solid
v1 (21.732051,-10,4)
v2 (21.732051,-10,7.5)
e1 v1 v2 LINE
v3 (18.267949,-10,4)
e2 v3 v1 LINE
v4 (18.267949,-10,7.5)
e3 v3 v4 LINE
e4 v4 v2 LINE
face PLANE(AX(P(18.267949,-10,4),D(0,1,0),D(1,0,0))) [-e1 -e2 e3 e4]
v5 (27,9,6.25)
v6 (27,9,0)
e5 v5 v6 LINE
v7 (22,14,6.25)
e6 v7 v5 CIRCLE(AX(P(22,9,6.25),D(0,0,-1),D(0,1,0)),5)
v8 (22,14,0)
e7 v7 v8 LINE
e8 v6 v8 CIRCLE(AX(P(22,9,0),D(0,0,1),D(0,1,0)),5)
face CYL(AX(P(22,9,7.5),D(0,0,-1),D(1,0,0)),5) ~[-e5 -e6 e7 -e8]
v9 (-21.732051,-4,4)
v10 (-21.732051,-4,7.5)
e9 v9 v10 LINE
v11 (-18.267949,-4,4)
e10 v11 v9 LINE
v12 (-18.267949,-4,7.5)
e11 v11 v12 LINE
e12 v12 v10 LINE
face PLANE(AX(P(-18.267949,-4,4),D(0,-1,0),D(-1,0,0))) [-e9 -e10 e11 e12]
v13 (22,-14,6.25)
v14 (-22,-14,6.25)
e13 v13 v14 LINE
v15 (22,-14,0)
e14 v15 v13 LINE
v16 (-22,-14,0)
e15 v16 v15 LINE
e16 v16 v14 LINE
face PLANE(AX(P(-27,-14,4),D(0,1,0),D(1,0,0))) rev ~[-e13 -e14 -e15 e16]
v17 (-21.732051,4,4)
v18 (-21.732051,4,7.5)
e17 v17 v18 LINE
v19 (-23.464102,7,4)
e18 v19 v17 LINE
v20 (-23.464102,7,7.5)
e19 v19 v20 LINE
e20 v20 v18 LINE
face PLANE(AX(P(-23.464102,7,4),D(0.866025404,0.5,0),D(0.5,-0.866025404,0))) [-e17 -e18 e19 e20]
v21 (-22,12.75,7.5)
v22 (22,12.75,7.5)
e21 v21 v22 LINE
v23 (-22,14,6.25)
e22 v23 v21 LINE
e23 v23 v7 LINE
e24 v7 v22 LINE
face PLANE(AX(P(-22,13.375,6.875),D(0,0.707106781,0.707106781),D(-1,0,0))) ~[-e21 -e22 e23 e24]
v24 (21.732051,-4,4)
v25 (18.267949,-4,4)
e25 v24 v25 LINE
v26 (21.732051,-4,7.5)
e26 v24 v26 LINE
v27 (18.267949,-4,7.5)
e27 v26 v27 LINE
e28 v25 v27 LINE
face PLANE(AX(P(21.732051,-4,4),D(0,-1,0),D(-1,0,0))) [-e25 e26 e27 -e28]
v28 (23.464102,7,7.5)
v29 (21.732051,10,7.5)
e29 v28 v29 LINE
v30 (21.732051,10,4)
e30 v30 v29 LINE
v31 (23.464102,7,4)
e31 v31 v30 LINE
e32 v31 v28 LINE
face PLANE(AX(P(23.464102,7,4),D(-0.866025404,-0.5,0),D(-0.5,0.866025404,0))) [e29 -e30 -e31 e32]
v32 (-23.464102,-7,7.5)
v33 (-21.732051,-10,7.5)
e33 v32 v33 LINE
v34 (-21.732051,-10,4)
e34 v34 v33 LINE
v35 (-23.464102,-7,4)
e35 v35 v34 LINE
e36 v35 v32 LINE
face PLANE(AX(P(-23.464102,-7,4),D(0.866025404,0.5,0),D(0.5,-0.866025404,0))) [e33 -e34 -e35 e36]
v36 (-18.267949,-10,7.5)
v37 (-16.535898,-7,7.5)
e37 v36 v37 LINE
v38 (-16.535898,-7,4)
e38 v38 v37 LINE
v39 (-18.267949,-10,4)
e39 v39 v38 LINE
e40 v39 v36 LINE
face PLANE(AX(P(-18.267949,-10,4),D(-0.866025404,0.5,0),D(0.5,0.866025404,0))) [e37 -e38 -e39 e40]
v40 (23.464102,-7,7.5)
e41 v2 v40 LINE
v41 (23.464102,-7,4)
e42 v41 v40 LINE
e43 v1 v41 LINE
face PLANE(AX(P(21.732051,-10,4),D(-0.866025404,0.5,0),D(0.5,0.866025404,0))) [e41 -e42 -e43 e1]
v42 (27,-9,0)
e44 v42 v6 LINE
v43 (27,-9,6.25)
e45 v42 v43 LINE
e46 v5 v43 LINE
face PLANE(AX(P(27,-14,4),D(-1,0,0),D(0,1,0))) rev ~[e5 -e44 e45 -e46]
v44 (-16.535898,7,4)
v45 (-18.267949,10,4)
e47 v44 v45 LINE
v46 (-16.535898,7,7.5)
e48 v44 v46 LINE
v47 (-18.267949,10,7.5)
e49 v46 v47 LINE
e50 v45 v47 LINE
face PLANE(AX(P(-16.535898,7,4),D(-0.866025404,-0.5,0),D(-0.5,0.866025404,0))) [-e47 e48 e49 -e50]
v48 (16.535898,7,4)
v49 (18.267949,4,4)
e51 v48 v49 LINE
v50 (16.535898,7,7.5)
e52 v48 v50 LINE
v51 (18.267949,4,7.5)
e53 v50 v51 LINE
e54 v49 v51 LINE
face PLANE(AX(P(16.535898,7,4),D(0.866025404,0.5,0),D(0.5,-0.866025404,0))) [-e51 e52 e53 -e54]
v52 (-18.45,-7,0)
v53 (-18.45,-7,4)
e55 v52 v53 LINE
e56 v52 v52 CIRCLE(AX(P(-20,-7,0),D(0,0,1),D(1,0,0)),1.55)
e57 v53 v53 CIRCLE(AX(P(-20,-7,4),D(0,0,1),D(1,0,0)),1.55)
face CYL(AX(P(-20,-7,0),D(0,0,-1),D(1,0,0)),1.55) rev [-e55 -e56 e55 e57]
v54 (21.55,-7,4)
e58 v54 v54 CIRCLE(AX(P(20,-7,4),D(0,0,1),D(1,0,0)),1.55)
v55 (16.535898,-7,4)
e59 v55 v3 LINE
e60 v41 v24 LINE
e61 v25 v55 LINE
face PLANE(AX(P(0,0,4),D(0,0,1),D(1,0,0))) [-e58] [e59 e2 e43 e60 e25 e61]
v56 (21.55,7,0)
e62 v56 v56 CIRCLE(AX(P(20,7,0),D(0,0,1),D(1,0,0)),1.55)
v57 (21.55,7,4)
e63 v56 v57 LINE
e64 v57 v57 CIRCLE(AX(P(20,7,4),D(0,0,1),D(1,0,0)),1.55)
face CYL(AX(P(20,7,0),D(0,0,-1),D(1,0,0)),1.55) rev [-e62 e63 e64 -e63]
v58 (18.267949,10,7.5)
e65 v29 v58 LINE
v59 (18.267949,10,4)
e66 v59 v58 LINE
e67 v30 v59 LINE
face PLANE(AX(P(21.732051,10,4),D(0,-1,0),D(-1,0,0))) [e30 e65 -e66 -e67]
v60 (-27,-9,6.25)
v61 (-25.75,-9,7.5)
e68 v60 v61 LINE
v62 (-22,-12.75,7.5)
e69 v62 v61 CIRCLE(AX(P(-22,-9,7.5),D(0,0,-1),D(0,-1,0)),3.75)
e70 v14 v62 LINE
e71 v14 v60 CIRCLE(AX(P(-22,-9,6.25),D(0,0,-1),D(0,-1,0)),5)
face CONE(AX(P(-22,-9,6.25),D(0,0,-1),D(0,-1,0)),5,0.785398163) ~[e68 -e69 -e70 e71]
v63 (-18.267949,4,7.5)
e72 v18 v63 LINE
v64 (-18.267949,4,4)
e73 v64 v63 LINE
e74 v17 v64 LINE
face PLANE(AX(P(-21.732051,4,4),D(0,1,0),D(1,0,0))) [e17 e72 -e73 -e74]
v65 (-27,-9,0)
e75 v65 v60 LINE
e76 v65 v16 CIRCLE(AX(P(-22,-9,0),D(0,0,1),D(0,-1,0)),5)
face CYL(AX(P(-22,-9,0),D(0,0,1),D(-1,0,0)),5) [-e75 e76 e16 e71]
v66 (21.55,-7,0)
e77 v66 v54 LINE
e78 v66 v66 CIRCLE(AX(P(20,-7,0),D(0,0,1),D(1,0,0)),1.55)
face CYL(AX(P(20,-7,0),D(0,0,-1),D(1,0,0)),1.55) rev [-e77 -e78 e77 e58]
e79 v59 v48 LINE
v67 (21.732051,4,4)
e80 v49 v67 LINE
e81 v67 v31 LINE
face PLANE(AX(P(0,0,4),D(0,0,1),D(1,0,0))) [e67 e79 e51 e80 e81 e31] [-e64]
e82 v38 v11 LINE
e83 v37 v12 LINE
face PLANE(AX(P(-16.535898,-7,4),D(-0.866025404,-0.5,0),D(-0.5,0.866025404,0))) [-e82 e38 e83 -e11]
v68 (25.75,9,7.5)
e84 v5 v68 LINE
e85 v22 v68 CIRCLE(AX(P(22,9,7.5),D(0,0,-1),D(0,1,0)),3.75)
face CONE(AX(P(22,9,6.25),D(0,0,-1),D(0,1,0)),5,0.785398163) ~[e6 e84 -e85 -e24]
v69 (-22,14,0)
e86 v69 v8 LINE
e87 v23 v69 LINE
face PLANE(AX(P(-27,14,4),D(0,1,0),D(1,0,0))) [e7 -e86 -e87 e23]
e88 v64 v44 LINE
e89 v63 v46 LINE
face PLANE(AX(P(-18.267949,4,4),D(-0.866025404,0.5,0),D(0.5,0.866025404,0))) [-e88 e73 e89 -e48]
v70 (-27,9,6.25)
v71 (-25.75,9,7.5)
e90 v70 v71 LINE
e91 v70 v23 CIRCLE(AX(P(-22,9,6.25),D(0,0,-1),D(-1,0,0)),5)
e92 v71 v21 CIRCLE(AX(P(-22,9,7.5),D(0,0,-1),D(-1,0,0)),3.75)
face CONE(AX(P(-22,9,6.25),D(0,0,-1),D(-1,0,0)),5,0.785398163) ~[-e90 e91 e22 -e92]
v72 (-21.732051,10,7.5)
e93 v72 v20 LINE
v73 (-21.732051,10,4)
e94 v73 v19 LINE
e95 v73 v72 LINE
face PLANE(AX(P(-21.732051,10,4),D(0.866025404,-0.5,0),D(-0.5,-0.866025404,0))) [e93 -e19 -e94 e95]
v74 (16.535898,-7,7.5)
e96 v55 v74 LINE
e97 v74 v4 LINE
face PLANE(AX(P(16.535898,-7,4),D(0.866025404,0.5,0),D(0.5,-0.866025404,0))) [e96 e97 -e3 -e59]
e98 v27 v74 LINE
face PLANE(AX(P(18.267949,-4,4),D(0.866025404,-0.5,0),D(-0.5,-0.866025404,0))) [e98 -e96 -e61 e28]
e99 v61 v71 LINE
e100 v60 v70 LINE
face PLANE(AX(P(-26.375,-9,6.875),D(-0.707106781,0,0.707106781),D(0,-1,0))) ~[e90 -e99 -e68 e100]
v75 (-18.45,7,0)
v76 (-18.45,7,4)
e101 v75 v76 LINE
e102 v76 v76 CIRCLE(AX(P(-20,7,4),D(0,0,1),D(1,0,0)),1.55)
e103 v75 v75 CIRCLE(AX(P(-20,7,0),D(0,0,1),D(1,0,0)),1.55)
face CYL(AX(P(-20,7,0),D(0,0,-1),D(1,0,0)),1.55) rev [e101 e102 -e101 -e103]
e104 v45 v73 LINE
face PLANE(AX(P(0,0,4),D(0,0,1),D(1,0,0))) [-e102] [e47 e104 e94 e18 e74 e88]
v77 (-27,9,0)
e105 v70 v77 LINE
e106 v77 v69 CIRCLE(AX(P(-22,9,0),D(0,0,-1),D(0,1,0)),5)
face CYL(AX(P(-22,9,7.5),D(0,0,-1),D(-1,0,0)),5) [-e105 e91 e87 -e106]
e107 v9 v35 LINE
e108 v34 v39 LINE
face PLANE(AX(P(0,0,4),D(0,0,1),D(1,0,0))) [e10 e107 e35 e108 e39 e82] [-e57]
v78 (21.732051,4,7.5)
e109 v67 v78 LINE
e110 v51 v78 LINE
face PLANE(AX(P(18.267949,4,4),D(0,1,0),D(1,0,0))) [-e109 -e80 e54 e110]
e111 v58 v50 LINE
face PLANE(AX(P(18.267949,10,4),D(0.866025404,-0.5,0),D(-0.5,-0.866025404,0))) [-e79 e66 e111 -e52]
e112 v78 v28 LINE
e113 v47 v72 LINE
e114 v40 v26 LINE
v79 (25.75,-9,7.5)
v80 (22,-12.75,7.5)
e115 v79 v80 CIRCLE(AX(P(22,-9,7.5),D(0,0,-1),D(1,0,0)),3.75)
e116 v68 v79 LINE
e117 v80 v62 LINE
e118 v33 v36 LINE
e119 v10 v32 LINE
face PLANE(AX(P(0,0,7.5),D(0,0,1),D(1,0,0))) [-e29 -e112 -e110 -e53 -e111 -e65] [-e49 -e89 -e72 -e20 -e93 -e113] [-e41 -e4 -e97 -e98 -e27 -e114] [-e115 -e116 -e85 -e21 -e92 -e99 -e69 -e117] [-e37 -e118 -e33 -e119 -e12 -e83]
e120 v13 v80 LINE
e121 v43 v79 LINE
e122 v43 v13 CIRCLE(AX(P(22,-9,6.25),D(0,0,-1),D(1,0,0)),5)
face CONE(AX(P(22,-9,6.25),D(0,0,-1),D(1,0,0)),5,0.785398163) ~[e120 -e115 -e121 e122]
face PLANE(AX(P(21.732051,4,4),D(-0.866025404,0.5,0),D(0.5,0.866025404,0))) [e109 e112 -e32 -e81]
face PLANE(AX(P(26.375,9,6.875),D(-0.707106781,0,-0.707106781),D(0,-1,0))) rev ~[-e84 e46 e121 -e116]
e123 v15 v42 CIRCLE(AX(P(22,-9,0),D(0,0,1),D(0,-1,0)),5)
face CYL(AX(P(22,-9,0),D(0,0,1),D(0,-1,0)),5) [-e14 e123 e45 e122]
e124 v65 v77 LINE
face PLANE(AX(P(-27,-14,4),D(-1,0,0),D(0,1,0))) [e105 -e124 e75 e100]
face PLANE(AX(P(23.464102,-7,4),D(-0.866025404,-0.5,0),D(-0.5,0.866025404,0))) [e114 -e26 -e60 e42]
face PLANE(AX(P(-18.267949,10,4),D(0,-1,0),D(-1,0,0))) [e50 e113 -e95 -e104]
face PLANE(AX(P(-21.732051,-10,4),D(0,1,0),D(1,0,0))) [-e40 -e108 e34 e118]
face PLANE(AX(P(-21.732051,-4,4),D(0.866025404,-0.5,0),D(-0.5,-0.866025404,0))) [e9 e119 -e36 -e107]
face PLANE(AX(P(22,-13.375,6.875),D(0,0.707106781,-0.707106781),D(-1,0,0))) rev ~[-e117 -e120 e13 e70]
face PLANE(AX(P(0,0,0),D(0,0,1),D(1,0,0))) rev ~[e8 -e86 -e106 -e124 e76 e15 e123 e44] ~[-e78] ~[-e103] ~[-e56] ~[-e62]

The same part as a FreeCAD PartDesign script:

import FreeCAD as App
import Part
import Sketcher
from FreeCAD import Vector
Q = App.Units.Quantity


def edges_at(feature, points):
    """Names of the edges that pass closest to the given points."""
    edges = feature.Shape.Edges
    near = lambda p: min(range(len(edges)), key=lambda i: edges[i].distToShape(Part.Vertex(*p))[0])
    return sorted({f"Edge{near(p) + 1}" for p in points})


def add_polygon(sketch, points):
    """Adds a closed chain of lines whose ends are joined by coincident constraints."""
    first, n = sketch.GeometryCount, len(points)
    for a, b in zip(points, points[1:] + points[:1]):
        sketch.addGeometry(Part.LineSegment(App.Vector(*a, 0), App.Vector(*b, 0)), False)
    for i in range(n):
        sketch.addConstraint(Sketcher.Constraint("Coincident", first + i, 2, first + (i + 1) % n, 1))

doc = App.newDocument("Part")
params = doc.addObject("Spreadsheet::Sheet", "Params")
for row, (alias, value) in enumerate([
    ("sketch1_diameter", "3.1 mm"),
    ("sketch1_width", "54 mm"),
    ("sketch1_height", "28 mm"),
    ("pad1_length", "4 mm"),
    ("sketch2_width", "54 mm"),
    ("sketch2_height", "28 mm"),
    ("pad2_length", "3.5 mm"),
    ("fillet_radius", "5 mm"),
    ("chamfer_size", "1.25 mm"),
], start=1):
    params.set(f"A{row}", alias)
    params.set(f"B{row}", "=" + value)
    params.setAlias(f"B{row}", alias)

body = doc.addObject("PartDesign::Body", "Body")

sketch1 = doc.addObject("Sketcher::SketchObject", "Sketch")
body.addObject(sketch1)
sketch1.AttachmentSupport = (doc.XY_Plane, [""])
sketch1.MapMode = "FlatFace"
add_polygon(sketch1, [(-27, 14), (-27, -14), (27, -14), (27, 14)])
sketch1.addGeometry(Part.Circle(Vector(-20, -7, 0), Vector(0, 0, 1), 1.6), False)
sketch1.addGeometry(Part.Circle(Vector(20, -7, 0), Vector(0, 0, 1), 1.6), False)
sketch1.addGeometry(Part.Circle(Vector(-20, 7, 0), Vector(0, 0, 1), 1.6), False)
sketch1.addGeometry(Part.Circle(Vector(20, 7, 0), Vector(0, 0, 1), 1.6), False)
sketch1.addConstraint([
    Sketcher.Constraint("Vertical", 0),
    Sketcher.Constraint("Horizontal", 1),
    Sketcher.Constraint("Vertical", 2),
    Sketcher.Constraint("Horizontal", 3),
    Sketcher.Constraint("Equal", 4, 5),
    Sketcher.Constraint("Equal", 5, 6),
    Sketcher.Constraint("Equal", 6, 7),
    Sketcher.Constraint("Symmetric", 5, 3, 6, 3, -1, 1),
    Sketcher.Constraint("Symmetric", 4, 3, 7, 3, -1, 1),
    Sketcher.Constraint("Symmetric", 0, 2, 2, 2, -1, 1),
    Sketcher.Constraint("Symmetric", 4, 3, 5, 3, -2),
    Sketcher.Constraint("Diameter", 4, Q("3.1 mm")),
    Sketcher.Constraint("DistanceX", 1, 1, 1, 2, Q("54 mm")),
    Sketcher.Constraint("DistanceY", 0, 2, 0, 1, Q("28 mm")),
    Sketcher.Constraint("DistanceX", 4, 3, -1, 1, Q("20 mm")),
    Sketcher.Constraint("DistanceY", 4, 3, -1, 1, Q("7 mm")),
])
sketch1.setExpression("Constraints[15]", "Params.sketch1_diameter")
sketch1.setExpression("Constraints[16]", "Params.sketch1_width")
sketch1.setExpression("Constraints[17]", "Params.sketch1_height")
pad1 = doc.addObject("PartDesign::Pad", "Pad")
body.addObject(pad1)
pad1.Profile = sketch1
pad1.setExpression("Length", "Params.pad1_length")

sketch2 = doc.addObject("Sketcher::SketchObject", "Sketch001")
body.addObject(sketch2)
sketch2.AttachmentSupport = (doc.XY_Plane, [""])
sketch2.MapMode = "FlatFace"
sketch2.AttachmentOffset = App.Placement(Vector(0, 0, 4), App.Rotation())
add_polygon(sketch2, [(-27, 14), (-27, -14), (27, -14), (27, 14)])
add_polygon(sketch2, [(-18.3, -10), (-21.7, -10), (-23.5, -7), (-21.7, -4), (-18.3, -4), (-16.5, -7)])
add_polygon(sketch2, [(23.5, -7), (21.7, -10), (18.3, -10), (16.5, -7), (18.3, -4), (21.7, -4)])
add_polygon(sketch2, [(-16.5, 7), (-18.3, 4), (-21.7, 4), (-23.5, 7), (-21.7, 10), (-18.3, 10)])
add_polygon(sketch2, [(23.5, 7), (21.7, 4), (18.3, 4), (16.5, 7), (18.3, 10), (21.7, 10)])
sketch2.addConstraint([
    Sketcher.Constraint("Vertical", 0),
    Sketcher.Constraint("Horizontal", 1),
    Sketcher.Constraint("Vertical", 2),
    Sketcher.Constraint("Horizontal", 3),
    Sketcher.Constraint("Horizontal", 4),
    Sketcher.Constraint("Horizontal", 7),
    Sketcher.Constraint("Horizontal", 11),
    Sketcher.Constraint("Horizontal", 14),
    Sketcher.Constraint("Horizontal", 17),
    Sketcher.Constraint("Horizontal", 20),
    Sketcher.Constraint("Horizontal", 23),
    Sketcher.Constraint("Horizontal", 26),
    Sketcher.Constraint("Symmetric", 0, 2, 2, 2, -1, 1),
    Sketcher.Constraint("Symmetric", 13, 2, 16, 2, -1, 1),
    Sketcher.Constraint("Symmetric", 15, 2, 18, 2, -1, 1),
    Sketcher.Constraint("Symmetric", 10, 2, 19, 2, -1, 1),
    Sketcher.Constraint("Symmetric", 12, 2, 21, 2, -1, 1),
    Sketcher.Constraint("Symmetric", 6, 2, 22, 2, -1, 1),
    Sketcher.Constraint("Symmetric", 8, 2, 24, 2, -1, 1),
    Sketcher.Constraint("Symmetric", 9, 2, 25, 2, -1, 1),
    Sketcher.Constraint("Symmetric", 5, 2, 27, 2, -1, 1),
    Sketcher.Constraint("Symmetric", 4, 2, 10, 2, -2),
    Sketcher.Constraint("Symmetric", 8, 2, 12, 2, -2),
    Sketcher.Constraint("Symmetric", 7, 2, 13, 2, -2),
    Sketcher.Constraint("Symmetric", 5, 2, 15, 2, -2),
    Sketcher.Constraint("Parallel", 5, 8),
    Sketcher.Constraint("Parallel", 6, 9),
    Sketcher.Constraint("Parallel", 9, 10),
    Sketcher.Constraint("Parallel", 8, 12),
    Sketcher.Constraint("Parallel", 12, 15),
    Sketcher.Constraint("Parallel", 15, 18),
    Sketcher.Constraint("Parallel", 18, 21),
    Sketcher.Constraint("Parallel", 21, 24),
    Sketcher.Constraint("Parallel", 24, 27),
    Sketcher.Constraint("Horizontal", 5, 2, 8, 2),
    Sketcher.Constraint("Vertical", 4, 2, 6, 2),
    Sketcher.Constraint("DistanceX", 1, 1, 1, 2, Q("54 mm")),
    Sketcher.Constraint("DistanceY", 0, 2, 0, 1, Q("28 mm")),
    Sketcher.Constraint("Angle", 5, Q("120 deg")),
    Sketcher.Constraint("DistanceY", 4, 2, -1, 1, Q("10 mm")),
    Sketcher.Constraint("DistanceY", 5, 2, -1, 1, Q("7 mm")),
    Sketcher.Constraint("DistanceX", 9, 2, 10, 2, Q("40 mm")),
    Sketcher.Constraint("DistanceX", 4, 2, 4, 1, Q("3.464102 mm")),
])
sketch2.setExpression("Constraints[64]", "Params.sketch2_width")
sketch2.setExpression("Constraints[65]", "Params.sketch2_height")
pad2 = doc.addObject("PartDesign::Pad", "Pad001")
body.addObject(pad2)
pad2.Profile = sketch2
pad2.setExpression("Length", "Params.pad2_length")
doc.recompute()

fillet = doc.addObject("PartDesign::Fillet", "Fillet")
body.addObject(fillet)
fillet.Base = (pad2, edges_at(pad2, [
    (27, 14, 3.75),
    (27, -14, 3.75),
    (-27, -14, 3.75),
    (-27, 14, 3.75),
]))
fillet.setExpression("Radius", "Params.fillet_radius")
doc.recompute()

chamfer = doc.addObject("PartDesign::Chamfer", "Chamfer")
body.addObject(chamfer)
chamfer.Base = (fillet, edges_at(fillet, [
    (-27, 0, 7.5),
    (0, 14, 7.5),
    (0, -14, 7.5),
    (27, 0, 7.5),
    (-25.536, -12.536, 7.5),
    (25.536, -12.536, 7.5),
    (25.536, 12.536, 7.5),
    (-25.536, 12.536, 7.5),
]))
chamfer.setExpression("Size", "Params.chamfer_size")

doc.recompute()
